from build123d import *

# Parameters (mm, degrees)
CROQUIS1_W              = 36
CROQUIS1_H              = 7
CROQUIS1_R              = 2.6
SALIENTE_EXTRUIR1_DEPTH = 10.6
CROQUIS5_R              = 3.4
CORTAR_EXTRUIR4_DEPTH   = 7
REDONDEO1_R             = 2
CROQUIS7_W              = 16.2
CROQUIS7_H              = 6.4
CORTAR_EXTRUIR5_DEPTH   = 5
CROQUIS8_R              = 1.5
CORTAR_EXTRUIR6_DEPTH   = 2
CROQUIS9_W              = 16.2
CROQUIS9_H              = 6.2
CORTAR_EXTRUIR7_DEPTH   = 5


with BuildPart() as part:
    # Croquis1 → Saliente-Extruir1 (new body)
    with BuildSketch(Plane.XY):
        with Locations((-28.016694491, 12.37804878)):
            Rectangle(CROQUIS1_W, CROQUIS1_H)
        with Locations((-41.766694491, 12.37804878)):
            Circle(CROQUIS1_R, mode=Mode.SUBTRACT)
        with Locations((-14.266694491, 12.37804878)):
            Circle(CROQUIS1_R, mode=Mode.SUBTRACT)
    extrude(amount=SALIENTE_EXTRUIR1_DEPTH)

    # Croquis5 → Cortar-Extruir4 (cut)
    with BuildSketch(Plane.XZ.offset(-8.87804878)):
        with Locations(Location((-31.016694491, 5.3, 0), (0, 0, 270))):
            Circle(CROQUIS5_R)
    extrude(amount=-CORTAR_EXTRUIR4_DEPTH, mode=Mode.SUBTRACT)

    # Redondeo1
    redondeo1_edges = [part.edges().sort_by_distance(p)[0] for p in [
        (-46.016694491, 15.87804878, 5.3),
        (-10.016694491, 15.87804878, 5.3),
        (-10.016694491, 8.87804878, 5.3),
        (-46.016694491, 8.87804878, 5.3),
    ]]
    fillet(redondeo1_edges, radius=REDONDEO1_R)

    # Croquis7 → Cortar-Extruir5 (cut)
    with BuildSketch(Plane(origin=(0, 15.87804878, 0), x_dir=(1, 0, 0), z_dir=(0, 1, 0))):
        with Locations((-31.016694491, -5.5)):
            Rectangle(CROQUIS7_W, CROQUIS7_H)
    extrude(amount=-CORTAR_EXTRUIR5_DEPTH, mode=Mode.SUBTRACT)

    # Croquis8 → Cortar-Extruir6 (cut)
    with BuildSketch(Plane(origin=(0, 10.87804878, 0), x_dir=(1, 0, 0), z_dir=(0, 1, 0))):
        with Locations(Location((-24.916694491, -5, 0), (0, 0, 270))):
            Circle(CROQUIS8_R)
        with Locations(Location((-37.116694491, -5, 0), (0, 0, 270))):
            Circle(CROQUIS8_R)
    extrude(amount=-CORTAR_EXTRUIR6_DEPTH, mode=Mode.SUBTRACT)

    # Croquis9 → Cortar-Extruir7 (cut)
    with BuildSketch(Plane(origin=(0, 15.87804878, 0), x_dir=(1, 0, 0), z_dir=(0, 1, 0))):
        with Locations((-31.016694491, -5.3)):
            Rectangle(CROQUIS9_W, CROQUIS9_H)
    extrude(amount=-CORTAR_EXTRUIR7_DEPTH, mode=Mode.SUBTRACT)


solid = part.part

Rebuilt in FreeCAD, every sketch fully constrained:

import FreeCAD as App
import Part
import Sketcher

V = App.Vector


def edges_at(feature, points):
    """Names of the edges that pass closest to the given points."""
    edges = feature.Shape.Edges
    near = lambda p: min(range(len(edges)), key=lambda i: edges[i].distToShape(Part.Vertex(*p))[0])
    return sorted({f"Edge{near(p) + 1}" for p in points})

doc = App.newDocument("Part")
params = doc.addObject("Spreadsheet::Sheet", "Params")
for row, (alias, value) in enumerate([
    ("sketch1_diameter", "5.2 mm"),
    ("sketch1_width", "36 mm"),
    ("sketch1_height", "7 mm"),
    ("pad1_length", "10.6 mm"),
    ("sketch2_diameter", "6.8 mm"),
    ("pocket1_length", "7 mm"),
    ("fillet_radius", "2 mm"),
    ("sketch3_width", "16.2 mm"),
    ("sketch3_height", "6.4 mm"),
    ("pocket2_length", "5 mm"),
    ("sketch4_diameter", "3 mm"),
    ("pocket3_length", "2 mm"),
    ("sketch5_width", "16.2 mm"),
    ("sketch5_height", "6.2 mm"),
    ("pocket4_length", "5 mm"),
], start=1):
    params.set(f"A{row}", alias)
    params.set(f"B{row}", "=" + value)
    params.setAlias(f"B{row}", alias)

body = doc.addObject("PartDesign::Body", "Body")

sketch1 = body.newObject("Sketcher::SketchObject", "Sketch")
sketch1.AttachmentSupport = (doc.getObject("XY_Plane"), [""])
sketch1.MapMode = "FlatFace"
sketch1.addGeometry(Part.LineSegment(V(-46.016694, 15.878049, 0), V(-46.016694, 8.878049, 0)), False)
sketch1.addGeometry(Part.LineSegment(V(-46.016694, 8.878049, 0), V(-10.016694, 8.878049, 0)), False)
sketch1.addGeometry(Part.LineSegment(V(-10.016694, 8.878049, 0), V(-10.016694, 15.878049, 0)), False)
sketch1.addGeometry(Part.LineSegment(V(-10.016694, 15.878049, 0), V(-46.016694, 15.878049, 0)), False)
sketch1.addGeometry(Part.Circle(V(-41.766694, 12.378049, 0), V(0, 0, 1), 2.6), False)
sketch1.addGeometry(Part.Circle(V(-14.266694, 12.378049, 0), V(0, 0, 1), 2.6), False)
sketch1.addConstraint(Sketcher.Constraint("Coincident", 0, 2, 1, 1))
sketch1.addConstraint(Sketcher.Constraint("Coincident", 1, 2, 2, 1))
sketch1.addConstraint(Sketcher.Constraint("Coincident", 2, 2, 3, 1))
sketch1.addConstraint(Sketcher.Constraint("Coincident", 3, 2, 0, 1))
sketch1.addConstraint(Sketcher.Constraint("Vertical", 0))
sketch1.addConstraint(Sketcher.Constraint("Horizontal", 1))
sketch1.addConstraint(Sketcher.Constraint("Vertical", 2))
sketch1.addConstraint(Sketcher.Constraint("Horizontal", 3))
sketch1.addConstraint(Sketcher.Constraint("Equal", 4, 5))
sketch1.addConstraint(Sketcher.Constraint("Horizontal", 4, 3, 5, 3))
sketch1.addConstraint(Sketcher.Constraint("Diameter", 4, 5.2))
sketch1.addConstraint(Sketcher.Constraint("DistanceX", 1, 1, 1, 2, 36.0))
sketch1.addConstraint(Sketcher.Constraint("DistanceY", 0, 2, 0, 1, 7.0))
sketch1.addConstraint(Sketcher.Constraint("DistanceX", 4, 3, 5, 3, 27.5))
sketch1.addConstraint(Sketcher.Constraint("DistanceY", 0, 2, 4, 3, 3.5))
sketch1.addConstraint(Sketcher.Constraint("DistanceX", 0, 2, 4, 3, 4.25))
sketch1.addConstraint(Sketcher.Constraint("DistanceY", -1, 1, 4, 3, 12.378049))
sketch1.addConstraint(Sketcher.Constraint("DistanceX", 4, 3, -1, 1, 41.766694))
sketch1.setExpression("Constraints[10]", "Params.sketch1_diameter")
sketch1.setExpression("Constraints[11]", "Params.sketch1_width")
sketch1.setExpression("Constraints[12]", "Params.sketch1_height")
pad1 = body.newObject("PartDesign::Pad", "Pad")
pad1.Profile = sketch1
pad1.setExpression("Length", "Params.pad1_length")

sketch2 = body.newObject("Sketcher::SketchObject", "Sketch001")
sketch2.AttachmentSupport = (doc.getObject("XZ_Plane"), [""])
sketch2.MapMode = "FlatFace"
sketch2.AttachmentOffset = App.Placement(V(0, 0, -8.878049), App.Rotation())
sketch2.addGeometry(Part.Circle(V(-31.016694, 5.3, 0), V(0, 0, 1), 3.4), False)
sketch2.addConstraint(Sketcher.Constraint("Diameter", 0, 6.8))
sketch2.addConstraint(Sketcher.Constraint("DistanceY", -1, 1, 0, 3, 5.3))
sketch2.addConstraint(Sketcher.Constraint("DistanceX", 0, 3, -1, 1, 31.016694))
sketch2.setExpression("Constraints[0]", "Params.sketch2_diameter")
pocket1 = body.newObject("PartDesign::Pocket", "Pocket")
pocket1.Profile = sketch2
pocket1.setExpression("Length", "Params.pocket1_length")
doc.recompute()

fillet = body.newObject("PartDesign::Fillet", "Fillet")
fillet.Base = (pocket1, edges_at(pocket1, [
    (-46.017, 15.878, 5.3),
    (-10.017, 15.878, 5.3),
    (-10.017, 8.878, 5.3),
    (-46.017, 8.878, 5.3),
]))
fillet.setExpression("Radius", "Params.fillet_radius")

sketch3 = body.newObject("Sketcher::SketchObject", "Sketch002")
sketch3.AttachmentSupport = (doc.getObject("XZ_Plane"), [""])
sketch3.MapMode = "FlatFace"
sketch3.AttachmentOffset = App.Placement(V(0, 0, -15.878049), App.Rotation())
sketch3.addGeometry(Part.LineSegment(V(-39.116694, 2.3, 0), V(-39.116694, 8.7, 0)), False)
sketch3.addGeometry(Part.LineSegment(V(-39.116694, 8.7, 0), V(-22.916694, 8.7, 0)), False)
sketch3.addGeometry(Part.LineSegment(V(-22.916694, 8.7, 0), V(-22.916694, 2.3, 0)), False)
sketch3.addGeometry(Part.LineSegment(V(-22.916694, 2.3, 0), V(-39.116694, 2.3, 0)), False)
sketch3.addConstraint(Sketcher.Constraint("Coincident", 0, 2, 1, 1))
sketch3.addConstraint(Sketcher.Constraint("Coincident", 1, 2, 2, 1))
sketch3.addConstraint(Sketcher.Constraint("Coincident", 2, 2, 3, 1))
sketch3.addConstraint(Sketcher.Constraint("Coincident", 3, 2, 0, 1))
sketch3.addConstraint(Sketcher.Constraint("Vertical", 0))
sketch3.addConstraint(Sketcher.Constraint("Horizontal", 1))
sketch3.addConstraint(Sketcher.Constraint("Vertical", 2))
sketch3.addConstraint(Sketcher.Constraint("Horizontal", 3))
sketch3.addConstraint(Sketcher.Constraint("DistanceX", 1, 1, 1, 2, 16.2))
sketch3.addConstraint(Sketcher.Constraint("DistanceY", 0, 1, 0, 2, 6.4))
sketch3.addConstraint(Sketcher.Constraint("DistanceY", -1, 1, 0, 2, 8.7))
sketch3.addConstraint(Sketcher.Constraint("DistanceX", 0, 2, -1, 1, 39.116694))
sketch3.setExpression("Constraints[8]", "Params.sketch3_width")
sketch3.setExpression("Constraints[9]", "Params.sketch3_height")
pocket2 = body.newObject("PartDesign::Pocket", "Pocket001")
pocket2.Profile = sketch3
pocket2.setExpression("Length", "Params.pocket2_length")
pocket2.Reversed = True

sketch4 = body.newObject("Sketcher::SketchObject", "Sketch003")
sketch4.AttachmentSupport = (doc.getObject("XZ_Plane"), [""])
sketch4.MapMode = "FlatFace"
sketch4.AttachmentOffset = App.Placement(V(0, 0, -10.878049), App.Rotation())
sketch4.addGeometry(Part.Circle(V(-24.916694, 5, 0), V(0, 0, 1), 1.5), False)
sketch4.addGeometry(Part.Circle(V(-37.116694, 5, 0), V(0, 0, 1), 1.5), False)
sketch4.addConstraint(Sketcher.Constraint("Equal", 0, 1))
sketch4.addConstraint(Sketcher.Constraint("Horizontal", 0, 3, 1, 3))
sketch4.addConstraint(Sketcher.Constraint("Diameter", 0, 3.0))
sketch4.addConstraint(Sketcher.Constraint("DistanceY", -1, 1, 0, 3, 5.0))
sketch4.addConstraint(Sketcher.Constraint("DistanceX", 1, 3, 0, 3, 12.2))
sketch4.addConstraint(Sketcher.Constraint("DistanceX", 0, 3, -1, 1, 24.916694))
sketch4.setExpression("Constraints[2]", "Params.sketch4_diameter")
pocket3 = body.newObject("PartDesign::Pocket", "Pocket002")
pocket3.Profile = sketch4
pocket3.setExpression("Length", "Params.pocket3_length")
pocket3.Reversed = True

sketch5 = body.newObject("Sketcher::SketchObject", "Sketch004")
sketch5.AttachmentSupport = (doc.getObject("XZ_Plane"), [""])
sketch5.MapMode = "FlatFace"
sketch5.AttachmentOffset = App.Placement(V(0, 0, -15.878049), App.Rotation())
sketch5.addGeometry(Part.LineSegment(V(-39.116694, 2.2, 0), V(-39.116694, 8.4, 0)), False)
sketch5.addGeometry(Part.LineSegment(V(-39.116694, 8.4, 0), V(-22.916694, 8.4, 0)), False)
sketch5.addGeometry(Part.LineSegment(V(-22.916694, 8.4, 0), V(-22.916694, 2.2, 0)), False)
sketch5.addGeometry(Part.LineSegment(V(-22.916694, 2.2, 0), V(-39.116694, 2.2, 0)), False)
sketch5.addConstraint(Sketcher.Constraint("Coincident", 0, 2, 1, 1))
sketch5.addConstraint(Sketcher.Constraint("Coincident", 1, 2, 2, 1))
sketch5.addConstraint(Sketcher.Constraint("Coincident", 2, 2, 3, 1))
sketch5.addConstraint(Sketcher.Constraint("Coincident", 3, 2, 0, 1))
sketch5.addConstraint(Sketcher.Constraint("Vertical", 0))
sketch5.addConstraint(Sketcher.Constraint("Horizontal", 1))
sketch5.addConstraint(Sketcher.Constraint("Vertical", 2))
sketch5.addConstraint(Sketcher.Constraint("Horizontal", 3))
sketch5.addConstraint(Sketcher.Constraint("DistanceX", 1, 1, 1, 2, 16.2))
sketch5.addConstraint(Sketcher.Constraint("DistanceY", 0, 1, 0, 2, 6.2))
sketch5.addConstraint(Sketcher.Constraint("DistanceY", -1, 1, 0, 2, 8.4))
sketch5.addConstraint(Sketcher.Constraint("DistanceX", 0, 2, -1, 1, 39.116694))
sketch5.setExpression("Constraints[8]", "Params.sketch5_width")
sketch5.setExpression("Constraints[9]", "Params.sketch5_height")
pocket4 = body.newObject("PartDesign::Pocket", "Pocket003")
pocket4.Profile = sketch5
pocket4.setExpression("Length", "Params.pocket4_length")
pocket4.Reversed = True

doc.recompute()
